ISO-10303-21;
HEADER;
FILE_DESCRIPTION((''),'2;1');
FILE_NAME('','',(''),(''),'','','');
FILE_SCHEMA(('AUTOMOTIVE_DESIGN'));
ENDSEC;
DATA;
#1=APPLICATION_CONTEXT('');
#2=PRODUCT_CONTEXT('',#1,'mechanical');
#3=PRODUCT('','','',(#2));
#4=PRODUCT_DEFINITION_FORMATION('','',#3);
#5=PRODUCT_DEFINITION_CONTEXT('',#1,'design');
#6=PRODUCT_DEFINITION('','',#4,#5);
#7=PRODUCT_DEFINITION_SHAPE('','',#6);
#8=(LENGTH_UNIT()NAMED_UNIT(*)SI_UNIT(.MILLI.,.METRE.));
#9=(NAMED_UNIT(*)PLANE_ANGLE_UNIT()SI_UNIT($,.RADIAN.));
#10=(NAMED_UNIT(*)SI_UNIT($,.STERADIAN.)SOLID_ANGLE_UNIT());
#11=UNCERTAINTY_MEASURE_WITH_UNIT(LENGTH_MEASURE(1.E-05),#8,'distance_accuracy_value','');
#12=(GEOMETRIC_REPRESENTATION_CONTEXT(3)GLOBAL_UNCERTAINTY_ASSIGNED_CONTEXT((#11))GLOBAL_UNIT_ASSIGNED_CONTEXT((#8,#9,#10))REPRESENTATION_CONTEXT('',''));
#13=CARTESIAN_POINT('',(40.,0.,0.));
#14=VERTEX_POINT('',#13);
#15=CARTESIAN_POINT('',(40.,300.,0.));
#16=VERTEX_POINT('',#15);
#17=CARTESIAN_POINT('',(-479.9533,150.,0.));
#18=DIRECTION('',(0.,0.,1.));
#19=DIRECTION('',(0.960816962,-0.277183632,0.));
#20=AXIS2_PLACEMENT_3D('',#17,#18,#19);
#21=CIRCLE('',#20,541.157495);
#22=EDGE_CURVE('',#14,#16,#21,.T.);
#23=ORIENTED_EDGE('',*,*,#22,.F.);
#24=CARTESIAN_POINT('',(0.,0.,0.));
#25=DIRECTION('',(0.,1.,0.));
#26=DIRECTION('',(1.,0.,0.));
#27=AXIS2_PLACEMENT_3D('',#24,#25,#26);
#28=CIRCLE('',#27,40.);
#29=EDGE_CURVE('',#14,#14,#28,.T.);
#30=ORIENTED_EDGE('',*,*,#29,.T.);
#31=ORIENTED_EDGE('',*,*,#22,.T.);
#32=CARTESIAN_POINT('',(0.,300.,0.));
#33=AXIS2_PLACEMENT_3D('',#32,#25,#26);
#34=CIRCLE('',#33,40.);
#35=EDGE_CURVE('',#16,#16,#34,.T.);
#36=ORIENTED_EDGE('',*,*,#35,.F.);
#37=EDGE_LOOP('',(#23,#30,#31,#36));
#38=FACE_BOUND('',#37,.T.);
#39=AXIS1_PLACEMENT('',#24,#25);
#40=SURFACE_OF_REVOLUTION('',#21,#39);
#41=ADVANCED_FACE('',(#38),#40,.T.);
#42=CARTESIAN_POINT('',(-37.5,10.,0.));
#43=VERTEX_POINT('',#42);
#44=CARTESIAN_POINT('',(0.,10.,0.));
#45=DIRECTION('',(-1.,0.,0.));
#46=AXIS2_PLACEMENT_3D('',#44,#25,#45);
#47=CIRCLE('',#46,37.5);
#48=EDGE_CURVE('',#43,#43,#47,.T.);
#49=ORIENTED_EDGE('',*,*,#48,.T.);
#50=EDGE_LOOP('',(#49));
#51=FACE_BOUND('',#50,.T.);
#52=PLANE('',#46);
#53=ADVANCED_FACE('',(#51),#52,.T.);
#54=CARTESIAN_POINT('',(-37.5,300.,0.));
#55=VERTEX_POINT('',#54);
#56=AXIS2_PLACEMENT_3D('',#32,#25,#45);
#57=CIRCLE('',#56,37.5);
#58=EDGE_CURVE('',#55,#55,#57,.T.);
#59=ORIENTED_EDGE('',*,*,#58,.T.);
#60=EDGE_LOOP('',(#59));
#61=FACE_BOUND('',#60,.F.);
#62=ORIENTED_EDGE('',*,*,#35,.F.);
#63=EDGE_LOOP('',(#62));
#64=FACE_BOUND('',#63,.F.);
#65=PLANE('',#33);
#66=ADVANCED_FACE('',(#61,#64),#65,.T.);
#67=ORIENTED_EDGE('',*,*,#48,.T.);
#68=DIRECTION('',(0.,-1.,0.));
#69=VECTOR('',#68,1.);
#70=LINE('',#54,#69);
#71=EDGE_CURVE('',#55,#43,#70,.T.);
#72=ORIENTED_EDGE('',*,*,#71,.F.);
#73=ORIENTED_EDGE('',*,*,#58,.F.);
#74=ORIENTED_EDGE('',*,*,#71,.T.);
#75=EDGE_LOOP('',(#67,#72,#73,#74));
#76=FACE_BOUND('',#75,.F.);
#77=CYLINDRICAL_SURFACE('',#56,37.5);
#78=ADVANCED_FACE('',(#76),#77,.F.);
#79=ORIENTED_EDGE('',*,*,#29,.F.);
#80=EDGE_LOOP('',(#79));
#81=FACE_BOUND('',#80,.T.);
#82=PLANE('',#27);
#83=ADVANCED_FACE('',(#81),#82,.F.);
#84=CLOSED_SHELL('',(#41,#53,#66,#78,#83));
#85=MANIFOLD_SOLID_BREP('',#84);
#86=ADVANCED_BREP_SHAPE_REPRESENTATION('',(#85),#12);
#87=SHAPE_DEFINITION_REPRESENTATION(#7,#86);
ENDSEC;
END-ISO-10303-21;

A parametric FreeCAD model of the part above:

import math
import FreeCAD as App
import Part
import Sketcher
Q = App.Units.Quantity

doc = App.newDocument("Part")
params = doc.addObject("Spreadsheet::Sheet", "Params")
for row, (alias, value) in enumerate([
    ("sketch1_width", "40 mm"),
    ("sketch1_height", "300 mm"),
    ("revolution_angle", "360 deg"),
    ("sketch2_diameter", "75 mm"),
    ("pocket1_length", "290 mm"),
], start=1):
    params.set(f"A{row}", alias)
    params.set(f"B{row}", "=" + value)
    params.setAlias(f"B{row}", alias)

body = doc.addObject("PartDesign::Body", "Body")

# Sketch on XY plane
sketch1 = body.newObject("Sketcher::SketchObject", "Sketch")
sketch1.AttachmentSupport = (doc.getObject("XY_Plane"), [""])
sketch1.MapMode = "FlatFace"
sketch1.addGeometry([
    Part.LineSegment(App.Vector(0, 300, 0), App.Vector(0, 0, 0)),
    Part.LineSegment(App.Vector(0, 0, 0), App.Vector(40, 0, 0)),
    Part.ArcOfCircle(Part.Circle(App.Vector(-480, 150, 0), App.Vector(0, 0, 1), 541), math.radians(-16), math.radians(16)),
    Part.LineSegment(App.Vector(40, 300, 0), App.Vector(0, 300, 0)),
], False)
sketch1.addConstraint([
    Sketcher.Constraint("Coincident", 0, 2, 1, 1),
    Sketcher.Constraint("Coincident", 1, 2, 2, 1),
    Sketcher.Constraint("Coincident", 2, 2, 3, 1),
    Sketcher.Constraint("Coincident", 3, 2, 0, 1),
    Sketcher.Constraint("Vertical", 0),
    Sketcher.Constraint("Horizontal", 1),
    Sketcher.Constraint("Horizontal", 3),
    Sketcher.Constraint("Coincident", 0, 2, -1, 1),
    Sketcher.Constraint("Vertical", 1, 2, 2, 2),
    Sketcher.Constraint("DistanceX", 1, 1, 1, 2, Q("40 mm")),
    Sketcher.Constraint("DistanceY", 0, 2, 0, 1, Q("300 mm")),
    Sketcher.Constraint("Radius", 2, Q("541.1575 mm")),
])
sketch1.setExpression("Constraints[9]", "Params.sketch1_width")
sketch1.setExpression("Constraints[10]", "Params.sketch1_height")
revolution = body.newObject("PartDesign::Revolution", "Revolution")
revolution.Profile = sketch1
revolution.ReferenceAxis = (sketch1, ["V_Axis"])
revolution.setExpression("Angle", "Params.revolution_angle")

# Sketch on XZ plane
sketch2 = body.newObject("Sketcher::SketchObject", "Sketch001")
sketch2.AttachmentSupport = (doc.getObject("XZ_Plane"), [""])
sketch2.MapMode = "FlatFace"
sketch2.AttachmentOffset = App.Placement(App.Vector(0, 0, -300), App.Rotation())
sketch2.addGeometry(Part.Circle(App.Vector(0, 0, 0), App.Vector(0, 0, 1), 38), False)
sketch2.addConstraint([
    Sketcher.Constraint("Coincident", 0, 3, -1, 1),
    Sketcher.Constraint("Diameter", 0, Q("75 mm")),
])
sketch2.setExpression("Constraints[1]", "Params.sketch2_diameter")
pocket1 = body.newObject("PartDesign::Pocket", "Pocket")
pocket1.Profile = sketch2
pocket1.setExpression("Length", "Params.pocket1_length")
pocket1.Reversed = True

doc.recompute()
